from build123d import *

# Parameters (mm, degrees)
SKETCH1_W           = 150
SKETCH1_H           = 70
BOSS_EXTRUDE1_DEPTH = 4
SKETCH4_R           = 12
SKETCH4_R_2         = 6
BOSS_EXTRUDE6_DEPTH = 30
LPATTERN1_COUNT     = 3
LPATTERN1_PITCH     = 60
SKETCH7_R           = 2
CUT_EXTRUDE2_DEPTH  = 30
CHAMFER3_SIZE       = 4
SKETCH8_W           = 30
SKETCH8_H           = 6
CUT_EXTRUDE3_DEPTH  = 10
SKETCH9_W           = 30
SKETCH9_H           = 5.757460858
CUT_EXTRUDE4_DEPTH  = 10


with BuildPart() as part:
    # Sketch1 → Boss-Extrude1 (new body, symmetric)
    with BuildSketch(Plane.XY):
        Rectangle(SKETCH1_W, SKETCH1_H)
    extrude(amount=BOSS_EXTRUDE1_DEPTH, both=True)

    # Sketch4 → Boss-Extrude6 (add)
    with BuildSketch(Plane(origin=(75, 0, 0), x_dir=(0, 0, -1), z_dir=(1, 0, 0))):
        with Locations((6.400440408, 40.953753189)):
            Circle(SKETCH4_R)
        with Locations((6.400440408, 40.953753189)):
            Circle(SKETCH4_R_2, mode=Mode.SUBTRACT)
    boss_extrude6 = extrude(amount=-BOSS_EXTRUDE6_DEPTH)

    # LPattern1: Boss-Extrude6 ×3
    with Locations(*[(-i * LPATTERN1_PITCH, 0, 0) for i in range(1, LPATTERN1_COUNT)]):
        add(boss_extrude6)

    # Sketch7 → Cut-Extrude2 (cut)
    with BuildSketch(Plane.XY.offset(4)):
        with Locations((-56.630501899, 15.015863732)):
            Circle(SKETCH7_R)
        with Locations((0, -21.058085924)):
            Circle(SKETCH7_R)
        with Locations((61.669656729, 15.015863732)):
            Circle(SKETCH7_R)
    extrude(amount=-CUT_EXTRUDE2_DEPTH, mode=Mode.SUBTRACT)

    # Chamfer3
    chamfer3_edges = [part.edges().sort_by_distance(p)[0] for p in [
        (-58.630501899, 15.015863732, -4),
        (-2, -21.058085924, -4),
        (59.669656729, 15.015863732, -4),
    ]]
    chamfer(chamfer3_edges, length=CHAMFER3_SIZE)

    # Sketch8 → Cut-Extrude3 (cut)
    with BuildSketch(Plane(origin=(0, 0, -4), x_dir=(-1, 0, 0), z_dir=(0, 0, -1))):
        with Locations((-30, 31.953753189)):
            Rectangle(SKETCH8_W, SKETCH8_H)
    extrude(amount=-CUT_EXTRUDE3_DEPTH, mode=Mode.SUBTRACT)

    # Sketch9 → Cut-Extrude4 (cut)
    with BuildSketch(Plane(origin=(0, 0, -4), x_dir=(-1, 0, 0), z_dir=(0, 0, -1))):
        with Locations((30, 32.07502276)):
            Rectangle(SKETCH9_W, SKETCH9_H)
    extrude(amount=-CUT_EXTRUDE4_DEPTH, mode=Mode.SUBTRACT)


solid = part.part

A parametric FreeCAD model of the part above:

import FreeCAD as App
import Part
import Sketcher
Q = App.Units.Quantity


def edges_at(feature, points):
    """Names of the edges that pass closest to the given points."""
    edges = feature.Shape.Edges
    near = lambda p: min(range(len(edges)), key=lambda i: edges[i].distToShape(Part.Vertex(*p))[0])
    return sorted({f"Edge{near(p) + 1}" for p in points})

doc = App.newDocument("Part")
body = doc.addObject("PartDesign::Body", "Body")

# Sketch on XY plane
sketch1 = doc.addObject("Sketcher::SketchObject", "Sketch")
body.addObject(sketch1)
sketch1.AttachmentSupport = (doc.XY_Plane, [""])
sketch1.MapMode = "FlatFace"
sketch1.addGeometry(Part.LineSegment(App.Vector(-75, 35, 0), App.Vector(-75, -35, 0)), False)
sketch1.addGeometry(Part.LineSegment(App.Vector(-75, -35, 0), App.Vector(75, -35, 0)), False)
sketch1.addGeometry(Part.LineSegment(App.Vector(75, -35, 0), App.Vector(75, 35, 0)), False)
sketch1.addGeometry(Part.LineSegment(App.Vector(75, 35, 0), App.Vector(-75, 35, 0)), False)
sketch1.addConstraint(Sketcher.Constraint("Coincident", 0, 2, 1, 1))
sketch1.addConstraint(Sketcher.Constraint("Coincident", 1, 2, 2, 1))
sketch1.addConstraint(Sketcher.Constraint("Coincident", 2, 2, 3, 1))
sketch1.addConstraint(Sketcher.Constraint("Coincident", 3, 2, 0, 1))
sketch1.addConstraint(Sketcher.Constraint("Vertical", 0))
sketch1.addConstraint(Sketcher.Constraint("Horizontal", 1))
sketch1.addConstraint(Sketcher.Constraint("Vertical", 2))
sketch1.addConstraint(Sketcher.Constraint("Horizontal", 3))
sketch1.addConstraint(Sketcher.Constraint("Symmetric", 0, 2, 2, 2, -1, 1))
sketch1.addConstraint(Sketcher.Constraint("DistanceX", 1, 1, 1, 2, Q("150 mm")))
sketch1.addConstraint(Sketcher.Constraint("DistanceY", 0, 2, 0, 1, Q("70 mm")))
pad1 = doc.addObject("PartDesign::Pad", "Pad")
body.addObject(pad1)
pad1.Profile = sketch1
pad1.Length = 8
pad1.Midplane = True

# Sketch on YZ plane
sketch2 = doc.addObject("Sketcher::SketchObject", "Sketch001")
body.addObject(sketch2)
sketch2.AttachmentSupport = (doc.YZ_Plane, [""])
sketch2.MapMode = "FlatFace"
sketch2.AttachmentOffset = App.Placement(App.Vector(0, 0, 75), App.Rotation())
sketch2.addGeometry(Part.Circle(App.Vector(41, -6, 0), App.Vector(0, 0, 1), 12), False)
sketch2.addGeometry(Part.Circle(App.Vector(41, -6, 0), App.Vector(0, 0, 1), 6), False)
sketch2.addConstraint(Sketcher.Constraint("Coincident", 1, 3, 0, 3))
sketch2.addConstraint(Sketcher.Constraint("Diameter", 0, Q("24 mm")))
sketch2.addConstraint(Sketcher.Constraint("Diameter", 1, Q("12 mm")))
sketch2.addConstraint(Sketcher.Constraint("DistanceY", 0, 3, -1, 1, Q("6.40044 mm")))
sketch2.addConstraint(Sketcher.Constraint("DistanceX", -1, 1, 0, 3, Q("40.953753 mm")))
pad2 = doc.addObject("PartDesign::Pad", "Pad001")
body.addObject(pad2)
pad2.Profile = sketch2
pad2.Length = 30
pad2.Reversed = True
doc.recompute()

linearpattern = doc.addObject("PartDesign::LinearPattern", "LinearPattern")
body.addObject(linearpattern)
linearpattern.Originals = [pad2]
linearpattern.Direction = (doc.X_Axis, [""])
linearpattern.Mode = "offset"
linearpattern.Offset = 60
linearpattern.Occurrences = 3
linearpattern.Reversed = True
body.Tip = linearpattern

# Sketch on XY plane
sketch3 = doc.addObject("Sketcher::SketchObject", "Sketch002")
body.addObject(sketch3)
sketch3.AttachmentSupport = (doc.XY_Plane, [""])
sketch3.MapMode = "FlatFace"
sketch3.AttachmentOffset = App.Placement(App.Vector(0, 0, 4), App.Rotation())
sketch3.addGeometry(Part.Circle(App.Vector(-56.6, 15, 0), App.Vector(0, 0, 1), 2), False)
sketch3.addGeometry(Part.Circle(App.Vector(0, -21.1, 0), App.Vector(0, 0, 1), 2), False)
sketch3.addGeometry(Part.Circle(App.Vector(61.7, 15, 0), App.Vector(0, 0, 1), 2), False)
sketch3.addConstraint(Sketcher.Constraint("Equal", 0, 1))
sketch3.addConstraint(Sketcher.Constraint("Equal", 1, 2))
sketch3.addConstraint(Sketcher.Constraint("PointOnObject", 1, 3, -2))
sketch3.addConstraint(Sketcher.Constraint("Horizontal", 0, 3, 2, 3))
sketch3.addConstraint(Sketcher.Constraint("Diameter", 0, Q("4 mm")))
sketch3.addConstraint(Sketcher.Constraint("DistanceX", 0, 3, -1, 1, Q("56.630502 mm")))
sketch3.addConstraint(Sketcher.Constraint("DistanceY", 1, 3, 0, 3, Q("36.07395 mm")))
sketch3.addConstraint(Sketcher.Constraint("DistanceX", 0, 3, 2, 3, Q("118.300159 mm")))
sketch3.addConstraint(Sketcher.Constraint("DistanceY", -1, 1, 0, 3, Q("15.015864 mm")))
pocket1 = doc.addObject("PartDesign::Pocket", "Pocket")
body.addObject(pocket1)
pocket1.Profile = sketch3
pocket1.Length = 30
doc.recompute()

chamfer = doc.addObject("PartDesign::Chamfer", "Chamfer")
body.addObject(chamfer)
chamfer.Base = (pocket1, edges_at(pocket1, [(-58.631, 15.016, -4), (-2, -21.058, -4), (59.67, 15.016, -4)]))
chamfer.Size = 4

# Sketch on XY plane
sketch4 = doc.addObject("Sketcher::SketchObject", "Sketch003")
body.addObject(sketch4)
sketch4.AttachmentSupport = (doc.XY_Plane, [""])
sketch4.MapMode = "FlatFace"
sketch4.AttachmentOffset = App.Placement(App.Vector(0, 0, -4), App.Rotation())
sketch4.addGeometry(Part.LineSegment(App.Vector(45, 35, 0), App.Vector(45, 29, 0)), False)
sketch4.addGeometry(Part.LineSegment(App.Vector(45, 29, 0), App.Vector(15, 29, 0)), False)
sketch4.addGeometry(Part.LineSegment(App.Vector(15, 29, 0), App.Vector(15, 35, 0)), False)
sketch4.addGeometry(Part.LineSegment(App.Vector(15, 35, 0), App.Vector(45, 35, 0)), False)
sketch4.addConstraint(Sketcher.Constraint("Coincident", 0, 2, 1, 1))
sketch4.addConstraint(Sketcher.Constraint("Coincident", 1, 2, 2, 1))
sketch4.addConstraint(Sketcher.Constraint("Coincident", 2, 2, 3, 1))
sketch4.addConstraint(Sketcher.Constraint("Coincident", 3, 2, 0, 1))
sketch4.addConstraint(Sketcher.Constraint("Vertical", 0))
sketch4.addConstraint(Sketcher.Constraint("Horizontal", 1))
sketch4.addConstraint(Sketcher.Constraint("Vertical", 2))
sketch4.addConstraint(Sketcher.Constraint("Horizontal", 3))
sketch4.addConstraint(Sketcher.Constraint("DistanceX", 1, 2, 1, 1, Q("30 mm")))
sketch4.addConstraint(Sketcher.Constraint("DistanceY", 0, 2, 0, 1, Q("6 mm")))
sketch4.addConstraint(Sketcher.Constraint("DistanceX", -1, 1, 0, 2, Q("45 mm")))
sketch4.addConstraint(Sketcher.Constraint("DistanceY", -1, 1, 0, 2, Q("28.953753 mm")))
pocket2 = doc.addObject("PartDesign::Pocket", "Pocket001")
body.addObject(pocket2)
pocket2.Profile = sketch4
pocket2.Length = 10
pocket2.Reversed = True

# Sketch on XY plane
sketch5 = doc.addObject("Sketcher::SketchObject", "Sketch004")
body.addObject(sketch5)
sketch5.AttachmentSupport = (doc.XY_Plane, [""])
sketch5.MapMode = "FlatFace"
sketch5.AttachmentOffset = App.Placement(App.Vector(0, 0, -4), App.Rotation())
sketch5.addGeometry(Part.LineSegment(App.Vector(-15, 35, 0), App.Vector(-15, 29, 0)), False)
sketch5.addGeometry(Part.LineSegment(App.Vector(-15, 29, 0), App.Vector(-45, 29, 0)), False)
sketch5.addGeometry(Part.LineSegment(App.Vector(-45, 29, 0), App.Vector(-45, 35, 0)), False)
sketch5.addGeometry(Part.LineSegment(App.Vector(-45, 35, 0), App.Vector(-15, 35, 0)), False)
sketch5.addConstraint(Sketcher.Constraint("Coincident", 0, 2, 1, 1))
sketch5.addConstraint(Sketcher.Constraint("Coincident", 1, 2, 2, 1))
sketch5.addConstraint(Sketcher.Constraint("Coincident", 2, 2, 3, 1))
sketch5.addConstraint(Sketcher.Constraint("Coincident", 3, 2, 0, 1))
sketch5.addConstraint(Sketcher.Constraint("Vertical", 0))
sketch5.addConstraint(Sketcher.Constraint("Horizontal", 1))
sketch5.addConstraint(Sketcher.Constraint("Vertical", 2))
sketch5.addConstraint(Sketcher.Constraint("Horizontal", 3))
sketch5.addConstraint(Sketcher.Constraint("DistanceX", 1, 2, 1, 1, Q("30 mm")))
sketch5.addConstraint(Sketcher.Constraint("DistanceX", 0, 2, -1, 1, Q("15 mm")))
sketch5.addConstraint(Sketcher.Constraint("DistanceY", 0, 2, 0, 1, Q("5.757461 mm")))
sketch5.addConstraint(Sketcher.Constraint("DistanceY", -1, 1, 0, 2, Q("29.196292 mm")))
pocket3 = doc.addObject("PartDesign::Pocket", "Pocket002")
body.addObject(pocket3)
pocket3.Profile = sketch5
pocket3.Length = 10
pocket3.Reversed = True

doc.recompute()
